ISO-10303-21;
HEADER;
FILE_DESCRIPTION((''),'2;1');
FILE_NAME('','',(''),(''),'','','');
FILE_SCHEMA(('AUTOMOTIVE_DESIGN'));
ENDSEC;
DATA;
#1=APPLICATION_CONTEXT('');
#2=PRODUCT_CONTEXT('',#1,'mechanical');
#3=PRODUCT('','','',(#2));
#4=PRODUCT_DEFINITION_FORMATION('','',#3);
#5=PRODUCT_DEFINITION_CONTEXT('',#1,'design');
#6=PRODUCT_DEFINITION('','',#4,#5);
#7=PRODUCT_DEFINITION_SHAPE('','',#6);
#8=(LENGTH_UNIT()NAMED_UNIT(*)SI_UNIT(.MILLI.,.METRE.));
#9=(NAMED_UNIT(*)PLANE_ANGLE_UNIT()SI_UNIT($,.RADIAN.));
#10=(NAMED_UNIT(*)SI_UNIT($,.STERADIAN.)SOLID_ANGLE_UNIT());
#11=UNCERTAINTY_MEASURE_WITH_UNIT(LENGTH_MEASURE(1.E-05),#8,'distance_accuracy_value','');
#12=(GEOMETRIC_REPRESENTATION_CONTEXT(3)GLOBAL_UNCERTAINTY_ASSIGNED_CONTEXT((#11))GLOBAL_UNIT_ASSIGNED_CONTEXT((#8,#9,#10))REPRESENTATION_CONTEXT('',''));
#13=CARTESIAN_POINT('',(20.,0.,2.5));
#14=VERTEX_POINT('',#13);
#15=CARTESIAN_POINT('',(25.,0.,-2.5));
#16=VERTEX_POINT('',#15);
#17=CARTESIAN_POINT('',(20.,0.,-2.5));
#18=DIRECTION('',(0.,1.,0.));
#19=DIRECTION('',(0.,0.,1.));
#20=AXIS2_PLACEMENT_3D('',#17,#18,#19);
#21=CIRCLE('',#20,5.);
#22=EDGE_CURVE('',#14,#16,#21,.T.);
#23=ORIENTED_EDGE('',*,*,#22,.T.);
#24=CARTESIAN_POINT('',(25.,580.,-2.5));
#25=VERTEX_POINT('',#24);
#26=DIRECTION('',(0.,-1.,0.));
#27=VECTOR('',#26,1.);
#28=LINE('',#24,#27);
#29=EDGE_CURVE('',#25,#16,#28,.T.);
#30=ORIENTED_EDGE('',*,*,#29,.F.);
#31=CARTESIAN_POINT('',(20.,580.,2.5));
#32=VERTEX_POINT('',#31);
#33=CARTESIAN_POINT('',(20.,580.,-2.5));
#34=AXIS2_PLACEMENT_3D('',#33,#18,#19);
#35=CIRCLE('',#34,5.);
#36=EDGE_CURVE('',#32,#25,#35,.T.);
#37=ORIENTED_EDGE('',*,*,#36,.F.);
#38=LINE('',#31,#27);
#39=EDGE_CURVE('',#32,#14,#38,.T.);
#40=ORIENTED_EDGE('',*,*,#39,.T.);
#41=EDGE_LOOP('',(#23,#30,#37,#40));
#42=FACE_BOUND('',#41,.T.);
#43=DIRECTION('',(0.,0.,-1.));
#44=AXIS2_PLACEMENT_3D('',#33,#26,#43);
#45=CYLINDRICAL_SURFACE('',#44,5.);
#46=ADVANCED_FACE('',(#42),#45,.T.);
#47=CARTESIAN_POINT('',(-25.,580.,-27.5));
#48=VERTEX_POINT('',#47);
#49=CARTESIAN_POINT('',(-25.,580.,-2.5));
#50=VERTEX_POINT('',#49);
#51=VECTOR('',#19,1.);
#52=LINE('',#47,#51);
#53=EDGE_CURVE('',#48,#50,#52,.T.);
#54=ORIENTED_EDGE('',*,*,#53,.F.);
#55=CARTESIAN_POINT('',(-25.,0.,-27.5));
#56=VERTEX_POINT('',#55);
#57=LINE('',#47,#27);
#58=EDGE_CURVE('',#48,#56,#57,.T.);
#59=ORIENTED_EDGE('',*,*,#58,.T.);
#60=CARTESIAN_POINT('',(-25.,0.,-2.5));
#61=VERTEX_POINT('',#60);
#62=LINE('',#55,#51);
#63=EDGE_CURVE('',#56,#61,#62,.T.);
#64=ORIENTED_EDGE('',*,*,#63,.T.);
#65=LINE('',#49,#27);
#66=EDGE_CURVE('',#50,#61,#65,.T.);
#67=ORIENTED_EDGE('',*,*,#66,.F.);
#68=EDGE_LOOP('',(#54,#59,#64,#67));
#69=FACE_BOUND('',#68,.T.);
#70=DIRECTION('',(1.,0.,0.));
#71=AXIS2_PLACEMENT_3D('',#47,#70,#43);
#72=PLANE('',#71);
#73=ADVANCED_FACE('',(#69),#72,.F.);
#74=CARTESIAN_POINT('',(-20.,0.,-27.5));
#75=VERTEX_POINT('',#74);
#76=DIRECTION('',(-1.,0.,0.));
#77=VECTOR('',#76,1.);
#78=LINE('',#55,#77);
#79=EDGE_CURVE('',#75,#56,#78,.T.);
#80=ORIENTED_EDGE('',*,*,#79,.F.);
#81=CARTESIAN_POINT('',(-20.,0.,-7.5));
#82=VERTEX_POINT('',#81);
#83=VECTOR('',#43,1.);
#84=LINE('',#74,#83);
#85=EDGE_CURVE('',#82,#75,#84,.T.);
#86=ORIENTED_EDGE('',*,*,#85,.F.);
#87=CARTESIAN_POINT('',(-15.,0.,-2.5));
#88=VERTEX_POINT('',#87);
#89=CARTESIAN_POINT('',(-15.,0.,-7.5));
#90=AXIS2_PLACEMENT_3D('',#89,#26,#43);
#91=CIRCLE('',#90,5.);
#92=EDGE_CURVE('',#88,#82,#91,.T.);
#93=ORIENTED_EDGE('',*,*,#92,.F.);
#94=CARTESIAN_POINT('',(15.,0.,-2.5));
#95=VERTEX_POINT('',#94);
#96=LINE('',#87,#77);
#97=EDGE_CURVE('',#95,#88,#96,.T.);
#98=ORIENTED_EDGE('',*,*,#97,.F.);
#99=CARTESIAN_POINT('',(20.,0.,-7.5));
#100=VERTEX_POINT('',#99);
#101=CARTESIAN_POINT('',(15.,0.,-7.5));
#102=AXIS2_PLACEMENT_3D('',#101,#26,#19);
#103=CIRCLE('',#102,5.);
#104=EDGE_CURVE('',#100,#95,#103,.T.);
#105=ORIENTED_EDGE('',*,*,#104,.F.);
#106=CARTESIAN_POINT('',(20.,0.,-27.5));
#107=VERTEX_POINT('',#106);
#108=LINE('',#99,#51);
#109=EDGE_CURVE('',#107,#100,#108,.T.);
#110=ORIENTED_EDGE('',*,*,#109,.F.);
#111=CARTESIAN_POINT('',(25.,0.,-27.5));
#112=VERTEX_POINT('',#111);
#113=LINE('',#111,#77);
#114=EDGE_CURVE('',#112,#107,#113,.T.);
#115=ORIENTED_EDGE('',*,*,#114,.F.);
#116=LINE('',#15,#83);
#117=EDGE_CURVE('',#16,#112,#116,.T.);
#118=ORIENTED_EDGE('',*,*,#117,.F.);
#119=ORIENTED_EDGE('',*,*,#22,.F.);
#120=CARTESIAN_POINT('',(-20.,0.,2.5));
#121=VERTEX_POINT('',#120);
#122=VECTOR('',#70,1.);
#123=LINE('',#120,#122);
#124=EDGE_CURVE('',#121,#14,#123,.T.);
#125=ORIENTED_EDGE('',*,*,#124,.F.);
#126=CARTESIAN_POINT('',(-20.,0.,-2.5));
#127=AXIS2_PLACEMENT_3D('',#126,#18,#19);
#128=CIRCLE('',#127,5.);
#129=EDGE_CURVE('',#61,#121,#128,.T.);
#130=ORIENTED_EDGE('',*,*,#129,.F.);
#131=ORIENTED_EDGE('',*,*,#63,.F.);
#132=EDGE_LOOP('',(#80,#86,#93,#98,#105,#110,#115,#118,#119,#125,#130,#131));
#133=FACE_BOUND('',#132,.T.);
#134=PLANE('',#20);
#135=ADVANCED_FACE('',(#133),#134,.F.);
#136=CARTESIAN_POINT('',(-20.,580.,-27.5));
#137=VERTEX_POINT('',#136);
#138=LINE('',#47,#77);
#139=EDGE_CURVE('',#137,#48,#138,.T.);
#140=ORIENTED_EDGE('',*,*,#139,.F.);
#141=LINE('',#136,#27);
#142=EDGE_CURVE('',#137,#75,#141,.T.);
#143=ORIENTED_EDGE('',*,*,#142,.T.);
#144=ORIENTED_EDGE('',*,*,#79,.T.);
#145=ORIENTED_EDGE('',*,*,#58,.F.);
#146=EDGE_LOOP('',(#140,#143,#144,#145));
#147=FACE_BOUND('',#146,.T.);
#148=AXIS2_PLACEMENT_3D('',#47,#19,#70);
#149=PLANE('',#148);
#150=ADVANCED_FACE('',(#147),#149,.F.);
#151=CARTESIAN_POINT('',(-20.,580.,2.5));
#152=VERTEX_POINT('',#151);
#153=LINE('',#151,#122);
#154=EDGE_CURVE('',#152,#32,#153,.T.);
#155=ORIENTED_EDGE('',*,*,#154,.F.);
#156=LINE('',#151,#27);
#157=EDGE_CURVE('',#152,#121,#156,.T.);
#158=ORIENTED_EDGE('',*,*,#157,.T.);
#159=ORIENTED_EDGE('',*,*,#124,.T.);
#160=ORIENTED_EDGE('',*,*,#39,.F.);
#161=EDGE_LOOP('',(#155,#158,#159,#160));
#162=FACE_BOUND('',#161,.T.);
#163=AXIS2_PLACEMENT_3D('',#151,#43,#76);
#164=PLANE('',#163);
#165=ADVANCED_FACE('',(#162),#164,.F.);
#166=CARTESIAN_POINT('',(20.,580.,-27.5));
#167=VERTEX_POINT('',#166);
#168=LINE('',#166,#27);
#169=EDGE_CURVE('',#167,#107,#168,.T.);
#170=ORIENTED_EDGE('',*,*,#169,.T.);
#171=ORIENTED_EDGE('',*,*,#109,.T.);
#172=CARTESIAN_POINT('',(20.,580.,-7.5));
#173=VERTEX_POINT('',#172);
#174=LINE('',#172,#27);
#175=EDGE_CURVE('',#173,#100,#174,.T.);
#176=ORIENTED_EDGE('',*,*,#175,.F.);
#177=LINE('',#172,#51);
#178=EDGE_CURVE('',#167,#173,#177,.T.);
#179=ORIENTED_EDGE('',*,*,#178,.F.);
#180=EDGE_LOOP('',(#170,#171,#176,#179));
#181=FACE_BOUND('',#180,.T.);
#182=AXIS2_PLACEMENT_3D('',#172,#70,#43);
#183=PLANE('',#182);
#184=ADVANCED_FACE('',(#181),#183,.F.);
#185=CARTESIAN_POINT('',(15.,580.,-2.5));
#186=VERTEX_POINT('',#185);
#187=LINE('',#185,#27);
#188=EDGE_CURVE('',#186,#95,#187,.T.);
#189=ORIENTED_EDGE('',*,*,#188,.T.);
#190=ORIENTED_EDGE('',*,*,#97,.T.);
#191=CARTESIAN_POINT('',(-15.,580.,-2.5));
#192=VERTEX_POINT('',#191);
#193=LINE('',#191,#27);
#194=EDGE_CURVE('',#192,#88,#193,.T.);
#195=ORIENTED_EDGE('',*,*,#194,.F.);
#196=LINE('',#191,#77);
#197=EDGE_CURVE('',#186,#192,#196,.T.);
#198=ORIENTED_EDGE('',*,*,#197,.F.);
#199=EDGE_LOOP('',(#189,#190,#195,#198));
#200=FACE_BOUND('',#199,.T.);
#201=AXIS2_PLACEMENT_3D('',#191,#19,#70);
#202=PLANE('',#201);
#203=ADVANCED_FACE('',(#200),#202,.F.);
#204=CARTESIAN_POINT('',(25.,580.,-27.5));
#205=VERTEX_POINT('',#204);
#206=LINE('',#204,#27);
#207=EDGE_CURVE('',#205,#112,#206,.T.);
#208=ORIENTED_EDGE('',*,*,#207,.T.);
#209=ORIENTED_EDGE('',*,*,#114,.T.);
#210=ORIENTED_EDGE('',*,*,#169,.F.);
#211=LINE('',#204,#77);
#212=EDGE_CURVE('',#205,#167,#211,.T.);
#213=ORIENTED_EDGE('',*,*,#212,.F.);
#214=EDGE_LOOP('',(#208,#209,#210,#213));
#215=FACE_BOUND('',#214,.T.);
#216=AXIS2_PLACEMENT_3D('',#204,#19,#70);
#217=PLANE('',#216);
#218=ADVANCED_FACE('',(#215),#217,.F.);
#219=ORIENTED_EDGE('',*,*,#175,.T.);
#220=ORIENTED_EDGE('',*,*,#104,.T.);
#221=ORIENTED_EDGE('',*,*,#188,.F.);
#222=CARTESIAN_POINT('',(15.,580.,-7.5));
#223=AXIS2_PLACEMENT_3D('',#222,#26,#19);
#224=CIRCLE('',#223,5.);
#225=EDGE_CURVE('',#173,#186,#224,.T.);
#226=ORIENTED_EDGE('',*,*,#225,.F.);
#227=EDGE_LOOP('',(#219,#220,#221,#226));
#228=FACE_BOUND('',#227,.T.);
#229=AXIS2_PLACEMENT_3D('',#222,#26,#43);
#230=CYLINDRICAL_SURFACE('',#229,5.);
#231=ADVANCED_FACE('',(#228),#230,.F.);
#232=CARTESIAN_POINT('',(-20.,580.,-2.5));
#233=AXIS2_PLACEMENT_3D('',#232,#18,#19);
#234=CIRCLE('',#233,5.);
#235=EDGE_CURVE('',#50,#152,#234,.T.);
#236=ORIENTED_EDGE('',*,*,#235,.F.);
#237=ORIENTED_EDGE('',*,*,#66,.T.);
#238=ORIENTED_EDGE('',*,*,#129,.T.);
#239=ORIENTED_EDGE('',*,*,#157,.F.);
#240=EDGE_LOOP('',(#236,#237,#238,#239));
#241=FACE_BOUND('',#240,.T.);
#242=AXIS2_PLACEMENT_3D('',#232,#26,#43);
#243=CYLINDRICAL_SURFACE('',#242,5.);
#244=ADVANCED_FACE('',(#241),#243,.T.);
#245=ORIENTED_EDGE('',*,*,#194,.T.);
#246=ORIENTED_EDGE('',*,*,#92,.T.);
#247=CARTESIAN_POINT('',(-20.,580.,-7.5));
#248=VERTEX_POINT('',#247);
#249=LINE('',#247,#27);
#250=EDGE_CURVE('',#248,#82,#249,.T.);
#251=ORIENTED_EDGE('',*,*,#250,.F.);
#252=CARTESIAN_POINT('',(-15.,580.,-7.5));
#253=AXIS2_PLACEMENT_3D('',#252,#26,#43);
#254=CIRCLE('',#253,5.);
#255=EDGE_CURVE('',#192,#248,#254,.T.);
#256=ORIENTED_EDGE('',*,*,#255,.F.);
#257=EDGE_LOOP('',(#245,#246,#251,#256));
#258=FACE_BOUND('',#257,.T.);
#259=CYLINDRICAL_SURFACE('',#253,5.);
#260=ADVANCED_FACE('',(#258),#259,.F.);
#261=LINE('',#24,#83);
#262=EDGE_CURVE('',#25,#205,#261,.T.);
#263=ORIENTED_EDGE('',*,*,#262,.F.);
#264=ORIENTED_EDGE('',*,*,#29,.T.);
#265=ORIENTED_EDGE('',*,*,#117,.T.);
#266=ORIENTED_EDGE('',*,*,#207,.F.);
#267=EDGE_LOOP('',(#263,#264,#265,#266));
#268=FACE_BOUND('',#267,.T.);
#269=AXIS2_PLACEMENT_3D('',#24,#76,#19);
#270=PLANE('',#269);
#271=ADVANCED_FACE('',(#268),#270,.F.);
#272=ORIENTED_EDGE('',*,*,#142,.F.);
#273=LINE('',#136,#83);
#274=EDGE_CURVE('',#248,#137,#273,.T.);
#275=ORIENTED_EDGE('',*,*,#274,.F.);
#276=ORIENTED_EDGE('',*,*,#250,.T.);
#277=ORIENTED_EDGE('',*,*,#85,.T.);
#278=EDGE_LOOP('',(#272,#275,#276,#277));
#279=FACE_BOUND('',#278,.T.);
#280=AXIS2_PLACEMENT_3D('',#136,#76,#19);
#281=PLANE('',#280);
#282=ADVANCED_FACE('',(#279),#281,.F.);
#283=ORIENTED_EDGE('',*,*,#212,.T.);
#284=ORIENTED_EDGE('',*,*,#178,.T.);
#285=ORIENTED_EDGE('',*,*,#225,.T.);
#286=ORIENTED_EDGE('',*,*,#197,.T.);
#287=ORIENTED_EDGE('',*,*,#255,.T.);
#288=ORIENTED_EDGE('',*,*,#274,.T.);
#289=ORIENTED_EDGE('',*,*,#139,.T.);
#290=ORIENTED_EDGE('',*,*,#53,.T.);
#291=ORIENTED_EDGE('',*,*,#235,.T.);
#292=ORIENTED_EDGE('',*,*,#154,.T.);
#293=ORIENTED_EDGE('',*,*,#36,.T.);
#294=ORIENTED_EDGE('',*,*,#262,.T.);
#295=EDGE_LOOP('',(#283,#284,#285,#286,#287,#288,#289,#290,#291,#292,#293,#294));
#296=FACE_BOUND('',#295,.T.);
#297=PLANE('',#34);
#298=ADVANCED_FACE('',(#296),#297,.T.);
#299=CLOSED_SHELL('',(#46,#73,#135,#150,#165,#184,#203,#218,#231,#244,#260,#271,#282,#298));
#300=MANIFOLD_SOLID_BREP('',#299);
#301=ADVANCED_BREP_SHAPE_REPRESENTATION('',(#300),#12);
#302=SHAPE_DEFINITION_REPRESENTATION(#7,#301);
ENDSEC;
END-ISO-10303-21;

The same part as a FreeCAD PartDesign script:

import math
import FreeCAD as App
import Part
import Sketcher

V = App.Vector
Q = App.Units.Quantity

doc = App.newDocument("Part")
body = doc.addObject("PartDesign::Body", "Body")

# Sketch on XZ plane
sketch1 = body.newObject("Sketcher::SketchObject", "Sketch")
sketch1.AttachmentSupport = (doc.getObject("XZ_Plane"), [""])
sketch1.MapMode = "FlatFace"
sketch1.addGeometry(Part.LineSegment(V(15, -2, 0), V(-15, -2, 0)), False)
sketch1.addGeometry(Part.ArcOfCircle(Part.Circle(V(-15, -8, 0), V(0, 0, 1), 5), math.radians(90), math.radians(180)), False)
sketch1.addGeometry(Part.LineSegment(V(-20, -8, 0), V(-20, -28, 0)), False)
sketch1.addGeometry(Part.LineSegment(V(-20, -28, 0), V(-25, -28, 0)), False)
sketch1.addGeometry(Part.LineSegment(V(-25, -28, 0), V(-25, -2, 0)), False)
sketch1.addGeometry(Part.ArcOfCircle(Part.Circle(V(-20, -2, 0), V(0, 0, 1), 5), math.radians(90), math.radians(180)), False)
sketch1.addGeometry(Part.LineSegment(V(-20, 2, 0), V(20, 2, 0)), False)
sketch1.addGeometry(Part.ArcOfCircle(Part.Circle(V(20, -2, 0), V(0, 0, 1), 5), math.radians(0), math.radians(90)), False)
sketch1.addGeometry(Part.LineSegment(V(25, -2, 0), V(25, -28, 0)), False)
sketch1.addGeometry(Part.LineSegment(V(25, -28, 0), V(20, -28, 0)), False)
sketch1.addGeometry(Part.LineSegment(V(20, -28, 0), V(20, -8, 0)), False)
sketch1.addGeometry(Part.ArcOfCircle(Part.Circle(V(15, -8, 0), V(0, 0, 1), 5), math.radians(0), math.radians(90)), False)
sketch1.addConstraint(Sketcher.Constraint("Tangent", 0, 2, 1, 1))
sketch1.addConstraint(Sketcher.Constraint("Tangent", 1, 2, 2, 1))
sketch1.addConstraint(Sketcher.Constraint("Coincident", 2, 2, 3, 1))
sketch1.addConstraint(Sketcher.Constraint("Coincident", 3, 2, 4, 1))
sketch1.addConstraint(Sketcher.Constraint("Tangent", 4, 2, 5, 2))
sketch1.addConstraint(Sketcher.Constraint("Tangent", 5, 1, 6, 1))
sketch1.addConstraint(Sketcher.Constraint("Tangent", 6, 2, 7, 2))
sketch1.addConstraint(Sketcher.Constraint("Tangent", 7, 1, 8, 1))
sketch1.addConstraint(Sketcher.Constraint("Coincident", 8, 2, 9, 1))
sketch1.addConstraint(Sketcher.Constraint("Coincident", 9, 2, 10, 1))
sketch1.addConstraint(Sketcher.Constraint("Tangent", 10, 2, 11, 1))
sketch1.addConstraint(Sketcher.Constraint("Tangent", 11, 2, 0, 1))
sketch1.addConstraint(Sketcher.Constraint("Horizontal", 0))
sketch1.addConstraint(Sketcher.Constraint("Vertical", 2))
sketch1.addConstraint(Sketcher.Constraint("Horizontal", 3))
sketch1.addConstraint(Sketcher.Constraint("Vertical", 4))
sketch1.addConstraint(Sketcher.Constraint("Horizontal", 6))
sketch1.addConstraint(Sketcher.Constraint("Vertical", 8))
sketch1.addConstraint(Sketcher.Constraint("Horizontal", 9))
sketch1.addConstraint(Sketcher.Constraint("Vertical", 10))
sketch1.addConstraint(Sketcher.Constraint("Equal", 1, 5))
sketch1.addConstraint(Sketcher.Constraint("Equal", 5, 7))
sketch1.addConstraint(Sketcher.Constraint("Equal", 7, 11))
sketch1.addConstraint(Sketcher.Constraint("Symmetric", 3, 2, 8, 2, -2))
sketch1.addConstraint(Sketcher.Constraint("Horizontal", 7, 3, 0, 2))
sketch1.addConstraint(Sketcher.Constraint("Vertical", 5, 3, 1, 2))
sketch1.addConstraint(Sketcher.Constraint("Vertical", 6, 2, 9, 2))
sketch1.addConstraint(Sketcher.Constraint("Radius", 1, Q("5 mm")))
sketch1.addConstraint(Sketcher.Constraint("DistanceX", 0, 2, 0, 1, Q("30 mm")))
sketch1.addConstraint(Sketcher.Constraint("DistanceY", 2, 2, 2, 1, Q("20 mm")))
sketch1.addConstraint(Sketcher.Constraint("DistanceY", 1, 3, -1, 1, Q("7.5 mm")))
pad1 = body.newObject("PartDesign::Pad", "Pad")
pad1.Profile = sketch1
pad1.Length = 580
pad1.Reversed = True

doc.recompute()
